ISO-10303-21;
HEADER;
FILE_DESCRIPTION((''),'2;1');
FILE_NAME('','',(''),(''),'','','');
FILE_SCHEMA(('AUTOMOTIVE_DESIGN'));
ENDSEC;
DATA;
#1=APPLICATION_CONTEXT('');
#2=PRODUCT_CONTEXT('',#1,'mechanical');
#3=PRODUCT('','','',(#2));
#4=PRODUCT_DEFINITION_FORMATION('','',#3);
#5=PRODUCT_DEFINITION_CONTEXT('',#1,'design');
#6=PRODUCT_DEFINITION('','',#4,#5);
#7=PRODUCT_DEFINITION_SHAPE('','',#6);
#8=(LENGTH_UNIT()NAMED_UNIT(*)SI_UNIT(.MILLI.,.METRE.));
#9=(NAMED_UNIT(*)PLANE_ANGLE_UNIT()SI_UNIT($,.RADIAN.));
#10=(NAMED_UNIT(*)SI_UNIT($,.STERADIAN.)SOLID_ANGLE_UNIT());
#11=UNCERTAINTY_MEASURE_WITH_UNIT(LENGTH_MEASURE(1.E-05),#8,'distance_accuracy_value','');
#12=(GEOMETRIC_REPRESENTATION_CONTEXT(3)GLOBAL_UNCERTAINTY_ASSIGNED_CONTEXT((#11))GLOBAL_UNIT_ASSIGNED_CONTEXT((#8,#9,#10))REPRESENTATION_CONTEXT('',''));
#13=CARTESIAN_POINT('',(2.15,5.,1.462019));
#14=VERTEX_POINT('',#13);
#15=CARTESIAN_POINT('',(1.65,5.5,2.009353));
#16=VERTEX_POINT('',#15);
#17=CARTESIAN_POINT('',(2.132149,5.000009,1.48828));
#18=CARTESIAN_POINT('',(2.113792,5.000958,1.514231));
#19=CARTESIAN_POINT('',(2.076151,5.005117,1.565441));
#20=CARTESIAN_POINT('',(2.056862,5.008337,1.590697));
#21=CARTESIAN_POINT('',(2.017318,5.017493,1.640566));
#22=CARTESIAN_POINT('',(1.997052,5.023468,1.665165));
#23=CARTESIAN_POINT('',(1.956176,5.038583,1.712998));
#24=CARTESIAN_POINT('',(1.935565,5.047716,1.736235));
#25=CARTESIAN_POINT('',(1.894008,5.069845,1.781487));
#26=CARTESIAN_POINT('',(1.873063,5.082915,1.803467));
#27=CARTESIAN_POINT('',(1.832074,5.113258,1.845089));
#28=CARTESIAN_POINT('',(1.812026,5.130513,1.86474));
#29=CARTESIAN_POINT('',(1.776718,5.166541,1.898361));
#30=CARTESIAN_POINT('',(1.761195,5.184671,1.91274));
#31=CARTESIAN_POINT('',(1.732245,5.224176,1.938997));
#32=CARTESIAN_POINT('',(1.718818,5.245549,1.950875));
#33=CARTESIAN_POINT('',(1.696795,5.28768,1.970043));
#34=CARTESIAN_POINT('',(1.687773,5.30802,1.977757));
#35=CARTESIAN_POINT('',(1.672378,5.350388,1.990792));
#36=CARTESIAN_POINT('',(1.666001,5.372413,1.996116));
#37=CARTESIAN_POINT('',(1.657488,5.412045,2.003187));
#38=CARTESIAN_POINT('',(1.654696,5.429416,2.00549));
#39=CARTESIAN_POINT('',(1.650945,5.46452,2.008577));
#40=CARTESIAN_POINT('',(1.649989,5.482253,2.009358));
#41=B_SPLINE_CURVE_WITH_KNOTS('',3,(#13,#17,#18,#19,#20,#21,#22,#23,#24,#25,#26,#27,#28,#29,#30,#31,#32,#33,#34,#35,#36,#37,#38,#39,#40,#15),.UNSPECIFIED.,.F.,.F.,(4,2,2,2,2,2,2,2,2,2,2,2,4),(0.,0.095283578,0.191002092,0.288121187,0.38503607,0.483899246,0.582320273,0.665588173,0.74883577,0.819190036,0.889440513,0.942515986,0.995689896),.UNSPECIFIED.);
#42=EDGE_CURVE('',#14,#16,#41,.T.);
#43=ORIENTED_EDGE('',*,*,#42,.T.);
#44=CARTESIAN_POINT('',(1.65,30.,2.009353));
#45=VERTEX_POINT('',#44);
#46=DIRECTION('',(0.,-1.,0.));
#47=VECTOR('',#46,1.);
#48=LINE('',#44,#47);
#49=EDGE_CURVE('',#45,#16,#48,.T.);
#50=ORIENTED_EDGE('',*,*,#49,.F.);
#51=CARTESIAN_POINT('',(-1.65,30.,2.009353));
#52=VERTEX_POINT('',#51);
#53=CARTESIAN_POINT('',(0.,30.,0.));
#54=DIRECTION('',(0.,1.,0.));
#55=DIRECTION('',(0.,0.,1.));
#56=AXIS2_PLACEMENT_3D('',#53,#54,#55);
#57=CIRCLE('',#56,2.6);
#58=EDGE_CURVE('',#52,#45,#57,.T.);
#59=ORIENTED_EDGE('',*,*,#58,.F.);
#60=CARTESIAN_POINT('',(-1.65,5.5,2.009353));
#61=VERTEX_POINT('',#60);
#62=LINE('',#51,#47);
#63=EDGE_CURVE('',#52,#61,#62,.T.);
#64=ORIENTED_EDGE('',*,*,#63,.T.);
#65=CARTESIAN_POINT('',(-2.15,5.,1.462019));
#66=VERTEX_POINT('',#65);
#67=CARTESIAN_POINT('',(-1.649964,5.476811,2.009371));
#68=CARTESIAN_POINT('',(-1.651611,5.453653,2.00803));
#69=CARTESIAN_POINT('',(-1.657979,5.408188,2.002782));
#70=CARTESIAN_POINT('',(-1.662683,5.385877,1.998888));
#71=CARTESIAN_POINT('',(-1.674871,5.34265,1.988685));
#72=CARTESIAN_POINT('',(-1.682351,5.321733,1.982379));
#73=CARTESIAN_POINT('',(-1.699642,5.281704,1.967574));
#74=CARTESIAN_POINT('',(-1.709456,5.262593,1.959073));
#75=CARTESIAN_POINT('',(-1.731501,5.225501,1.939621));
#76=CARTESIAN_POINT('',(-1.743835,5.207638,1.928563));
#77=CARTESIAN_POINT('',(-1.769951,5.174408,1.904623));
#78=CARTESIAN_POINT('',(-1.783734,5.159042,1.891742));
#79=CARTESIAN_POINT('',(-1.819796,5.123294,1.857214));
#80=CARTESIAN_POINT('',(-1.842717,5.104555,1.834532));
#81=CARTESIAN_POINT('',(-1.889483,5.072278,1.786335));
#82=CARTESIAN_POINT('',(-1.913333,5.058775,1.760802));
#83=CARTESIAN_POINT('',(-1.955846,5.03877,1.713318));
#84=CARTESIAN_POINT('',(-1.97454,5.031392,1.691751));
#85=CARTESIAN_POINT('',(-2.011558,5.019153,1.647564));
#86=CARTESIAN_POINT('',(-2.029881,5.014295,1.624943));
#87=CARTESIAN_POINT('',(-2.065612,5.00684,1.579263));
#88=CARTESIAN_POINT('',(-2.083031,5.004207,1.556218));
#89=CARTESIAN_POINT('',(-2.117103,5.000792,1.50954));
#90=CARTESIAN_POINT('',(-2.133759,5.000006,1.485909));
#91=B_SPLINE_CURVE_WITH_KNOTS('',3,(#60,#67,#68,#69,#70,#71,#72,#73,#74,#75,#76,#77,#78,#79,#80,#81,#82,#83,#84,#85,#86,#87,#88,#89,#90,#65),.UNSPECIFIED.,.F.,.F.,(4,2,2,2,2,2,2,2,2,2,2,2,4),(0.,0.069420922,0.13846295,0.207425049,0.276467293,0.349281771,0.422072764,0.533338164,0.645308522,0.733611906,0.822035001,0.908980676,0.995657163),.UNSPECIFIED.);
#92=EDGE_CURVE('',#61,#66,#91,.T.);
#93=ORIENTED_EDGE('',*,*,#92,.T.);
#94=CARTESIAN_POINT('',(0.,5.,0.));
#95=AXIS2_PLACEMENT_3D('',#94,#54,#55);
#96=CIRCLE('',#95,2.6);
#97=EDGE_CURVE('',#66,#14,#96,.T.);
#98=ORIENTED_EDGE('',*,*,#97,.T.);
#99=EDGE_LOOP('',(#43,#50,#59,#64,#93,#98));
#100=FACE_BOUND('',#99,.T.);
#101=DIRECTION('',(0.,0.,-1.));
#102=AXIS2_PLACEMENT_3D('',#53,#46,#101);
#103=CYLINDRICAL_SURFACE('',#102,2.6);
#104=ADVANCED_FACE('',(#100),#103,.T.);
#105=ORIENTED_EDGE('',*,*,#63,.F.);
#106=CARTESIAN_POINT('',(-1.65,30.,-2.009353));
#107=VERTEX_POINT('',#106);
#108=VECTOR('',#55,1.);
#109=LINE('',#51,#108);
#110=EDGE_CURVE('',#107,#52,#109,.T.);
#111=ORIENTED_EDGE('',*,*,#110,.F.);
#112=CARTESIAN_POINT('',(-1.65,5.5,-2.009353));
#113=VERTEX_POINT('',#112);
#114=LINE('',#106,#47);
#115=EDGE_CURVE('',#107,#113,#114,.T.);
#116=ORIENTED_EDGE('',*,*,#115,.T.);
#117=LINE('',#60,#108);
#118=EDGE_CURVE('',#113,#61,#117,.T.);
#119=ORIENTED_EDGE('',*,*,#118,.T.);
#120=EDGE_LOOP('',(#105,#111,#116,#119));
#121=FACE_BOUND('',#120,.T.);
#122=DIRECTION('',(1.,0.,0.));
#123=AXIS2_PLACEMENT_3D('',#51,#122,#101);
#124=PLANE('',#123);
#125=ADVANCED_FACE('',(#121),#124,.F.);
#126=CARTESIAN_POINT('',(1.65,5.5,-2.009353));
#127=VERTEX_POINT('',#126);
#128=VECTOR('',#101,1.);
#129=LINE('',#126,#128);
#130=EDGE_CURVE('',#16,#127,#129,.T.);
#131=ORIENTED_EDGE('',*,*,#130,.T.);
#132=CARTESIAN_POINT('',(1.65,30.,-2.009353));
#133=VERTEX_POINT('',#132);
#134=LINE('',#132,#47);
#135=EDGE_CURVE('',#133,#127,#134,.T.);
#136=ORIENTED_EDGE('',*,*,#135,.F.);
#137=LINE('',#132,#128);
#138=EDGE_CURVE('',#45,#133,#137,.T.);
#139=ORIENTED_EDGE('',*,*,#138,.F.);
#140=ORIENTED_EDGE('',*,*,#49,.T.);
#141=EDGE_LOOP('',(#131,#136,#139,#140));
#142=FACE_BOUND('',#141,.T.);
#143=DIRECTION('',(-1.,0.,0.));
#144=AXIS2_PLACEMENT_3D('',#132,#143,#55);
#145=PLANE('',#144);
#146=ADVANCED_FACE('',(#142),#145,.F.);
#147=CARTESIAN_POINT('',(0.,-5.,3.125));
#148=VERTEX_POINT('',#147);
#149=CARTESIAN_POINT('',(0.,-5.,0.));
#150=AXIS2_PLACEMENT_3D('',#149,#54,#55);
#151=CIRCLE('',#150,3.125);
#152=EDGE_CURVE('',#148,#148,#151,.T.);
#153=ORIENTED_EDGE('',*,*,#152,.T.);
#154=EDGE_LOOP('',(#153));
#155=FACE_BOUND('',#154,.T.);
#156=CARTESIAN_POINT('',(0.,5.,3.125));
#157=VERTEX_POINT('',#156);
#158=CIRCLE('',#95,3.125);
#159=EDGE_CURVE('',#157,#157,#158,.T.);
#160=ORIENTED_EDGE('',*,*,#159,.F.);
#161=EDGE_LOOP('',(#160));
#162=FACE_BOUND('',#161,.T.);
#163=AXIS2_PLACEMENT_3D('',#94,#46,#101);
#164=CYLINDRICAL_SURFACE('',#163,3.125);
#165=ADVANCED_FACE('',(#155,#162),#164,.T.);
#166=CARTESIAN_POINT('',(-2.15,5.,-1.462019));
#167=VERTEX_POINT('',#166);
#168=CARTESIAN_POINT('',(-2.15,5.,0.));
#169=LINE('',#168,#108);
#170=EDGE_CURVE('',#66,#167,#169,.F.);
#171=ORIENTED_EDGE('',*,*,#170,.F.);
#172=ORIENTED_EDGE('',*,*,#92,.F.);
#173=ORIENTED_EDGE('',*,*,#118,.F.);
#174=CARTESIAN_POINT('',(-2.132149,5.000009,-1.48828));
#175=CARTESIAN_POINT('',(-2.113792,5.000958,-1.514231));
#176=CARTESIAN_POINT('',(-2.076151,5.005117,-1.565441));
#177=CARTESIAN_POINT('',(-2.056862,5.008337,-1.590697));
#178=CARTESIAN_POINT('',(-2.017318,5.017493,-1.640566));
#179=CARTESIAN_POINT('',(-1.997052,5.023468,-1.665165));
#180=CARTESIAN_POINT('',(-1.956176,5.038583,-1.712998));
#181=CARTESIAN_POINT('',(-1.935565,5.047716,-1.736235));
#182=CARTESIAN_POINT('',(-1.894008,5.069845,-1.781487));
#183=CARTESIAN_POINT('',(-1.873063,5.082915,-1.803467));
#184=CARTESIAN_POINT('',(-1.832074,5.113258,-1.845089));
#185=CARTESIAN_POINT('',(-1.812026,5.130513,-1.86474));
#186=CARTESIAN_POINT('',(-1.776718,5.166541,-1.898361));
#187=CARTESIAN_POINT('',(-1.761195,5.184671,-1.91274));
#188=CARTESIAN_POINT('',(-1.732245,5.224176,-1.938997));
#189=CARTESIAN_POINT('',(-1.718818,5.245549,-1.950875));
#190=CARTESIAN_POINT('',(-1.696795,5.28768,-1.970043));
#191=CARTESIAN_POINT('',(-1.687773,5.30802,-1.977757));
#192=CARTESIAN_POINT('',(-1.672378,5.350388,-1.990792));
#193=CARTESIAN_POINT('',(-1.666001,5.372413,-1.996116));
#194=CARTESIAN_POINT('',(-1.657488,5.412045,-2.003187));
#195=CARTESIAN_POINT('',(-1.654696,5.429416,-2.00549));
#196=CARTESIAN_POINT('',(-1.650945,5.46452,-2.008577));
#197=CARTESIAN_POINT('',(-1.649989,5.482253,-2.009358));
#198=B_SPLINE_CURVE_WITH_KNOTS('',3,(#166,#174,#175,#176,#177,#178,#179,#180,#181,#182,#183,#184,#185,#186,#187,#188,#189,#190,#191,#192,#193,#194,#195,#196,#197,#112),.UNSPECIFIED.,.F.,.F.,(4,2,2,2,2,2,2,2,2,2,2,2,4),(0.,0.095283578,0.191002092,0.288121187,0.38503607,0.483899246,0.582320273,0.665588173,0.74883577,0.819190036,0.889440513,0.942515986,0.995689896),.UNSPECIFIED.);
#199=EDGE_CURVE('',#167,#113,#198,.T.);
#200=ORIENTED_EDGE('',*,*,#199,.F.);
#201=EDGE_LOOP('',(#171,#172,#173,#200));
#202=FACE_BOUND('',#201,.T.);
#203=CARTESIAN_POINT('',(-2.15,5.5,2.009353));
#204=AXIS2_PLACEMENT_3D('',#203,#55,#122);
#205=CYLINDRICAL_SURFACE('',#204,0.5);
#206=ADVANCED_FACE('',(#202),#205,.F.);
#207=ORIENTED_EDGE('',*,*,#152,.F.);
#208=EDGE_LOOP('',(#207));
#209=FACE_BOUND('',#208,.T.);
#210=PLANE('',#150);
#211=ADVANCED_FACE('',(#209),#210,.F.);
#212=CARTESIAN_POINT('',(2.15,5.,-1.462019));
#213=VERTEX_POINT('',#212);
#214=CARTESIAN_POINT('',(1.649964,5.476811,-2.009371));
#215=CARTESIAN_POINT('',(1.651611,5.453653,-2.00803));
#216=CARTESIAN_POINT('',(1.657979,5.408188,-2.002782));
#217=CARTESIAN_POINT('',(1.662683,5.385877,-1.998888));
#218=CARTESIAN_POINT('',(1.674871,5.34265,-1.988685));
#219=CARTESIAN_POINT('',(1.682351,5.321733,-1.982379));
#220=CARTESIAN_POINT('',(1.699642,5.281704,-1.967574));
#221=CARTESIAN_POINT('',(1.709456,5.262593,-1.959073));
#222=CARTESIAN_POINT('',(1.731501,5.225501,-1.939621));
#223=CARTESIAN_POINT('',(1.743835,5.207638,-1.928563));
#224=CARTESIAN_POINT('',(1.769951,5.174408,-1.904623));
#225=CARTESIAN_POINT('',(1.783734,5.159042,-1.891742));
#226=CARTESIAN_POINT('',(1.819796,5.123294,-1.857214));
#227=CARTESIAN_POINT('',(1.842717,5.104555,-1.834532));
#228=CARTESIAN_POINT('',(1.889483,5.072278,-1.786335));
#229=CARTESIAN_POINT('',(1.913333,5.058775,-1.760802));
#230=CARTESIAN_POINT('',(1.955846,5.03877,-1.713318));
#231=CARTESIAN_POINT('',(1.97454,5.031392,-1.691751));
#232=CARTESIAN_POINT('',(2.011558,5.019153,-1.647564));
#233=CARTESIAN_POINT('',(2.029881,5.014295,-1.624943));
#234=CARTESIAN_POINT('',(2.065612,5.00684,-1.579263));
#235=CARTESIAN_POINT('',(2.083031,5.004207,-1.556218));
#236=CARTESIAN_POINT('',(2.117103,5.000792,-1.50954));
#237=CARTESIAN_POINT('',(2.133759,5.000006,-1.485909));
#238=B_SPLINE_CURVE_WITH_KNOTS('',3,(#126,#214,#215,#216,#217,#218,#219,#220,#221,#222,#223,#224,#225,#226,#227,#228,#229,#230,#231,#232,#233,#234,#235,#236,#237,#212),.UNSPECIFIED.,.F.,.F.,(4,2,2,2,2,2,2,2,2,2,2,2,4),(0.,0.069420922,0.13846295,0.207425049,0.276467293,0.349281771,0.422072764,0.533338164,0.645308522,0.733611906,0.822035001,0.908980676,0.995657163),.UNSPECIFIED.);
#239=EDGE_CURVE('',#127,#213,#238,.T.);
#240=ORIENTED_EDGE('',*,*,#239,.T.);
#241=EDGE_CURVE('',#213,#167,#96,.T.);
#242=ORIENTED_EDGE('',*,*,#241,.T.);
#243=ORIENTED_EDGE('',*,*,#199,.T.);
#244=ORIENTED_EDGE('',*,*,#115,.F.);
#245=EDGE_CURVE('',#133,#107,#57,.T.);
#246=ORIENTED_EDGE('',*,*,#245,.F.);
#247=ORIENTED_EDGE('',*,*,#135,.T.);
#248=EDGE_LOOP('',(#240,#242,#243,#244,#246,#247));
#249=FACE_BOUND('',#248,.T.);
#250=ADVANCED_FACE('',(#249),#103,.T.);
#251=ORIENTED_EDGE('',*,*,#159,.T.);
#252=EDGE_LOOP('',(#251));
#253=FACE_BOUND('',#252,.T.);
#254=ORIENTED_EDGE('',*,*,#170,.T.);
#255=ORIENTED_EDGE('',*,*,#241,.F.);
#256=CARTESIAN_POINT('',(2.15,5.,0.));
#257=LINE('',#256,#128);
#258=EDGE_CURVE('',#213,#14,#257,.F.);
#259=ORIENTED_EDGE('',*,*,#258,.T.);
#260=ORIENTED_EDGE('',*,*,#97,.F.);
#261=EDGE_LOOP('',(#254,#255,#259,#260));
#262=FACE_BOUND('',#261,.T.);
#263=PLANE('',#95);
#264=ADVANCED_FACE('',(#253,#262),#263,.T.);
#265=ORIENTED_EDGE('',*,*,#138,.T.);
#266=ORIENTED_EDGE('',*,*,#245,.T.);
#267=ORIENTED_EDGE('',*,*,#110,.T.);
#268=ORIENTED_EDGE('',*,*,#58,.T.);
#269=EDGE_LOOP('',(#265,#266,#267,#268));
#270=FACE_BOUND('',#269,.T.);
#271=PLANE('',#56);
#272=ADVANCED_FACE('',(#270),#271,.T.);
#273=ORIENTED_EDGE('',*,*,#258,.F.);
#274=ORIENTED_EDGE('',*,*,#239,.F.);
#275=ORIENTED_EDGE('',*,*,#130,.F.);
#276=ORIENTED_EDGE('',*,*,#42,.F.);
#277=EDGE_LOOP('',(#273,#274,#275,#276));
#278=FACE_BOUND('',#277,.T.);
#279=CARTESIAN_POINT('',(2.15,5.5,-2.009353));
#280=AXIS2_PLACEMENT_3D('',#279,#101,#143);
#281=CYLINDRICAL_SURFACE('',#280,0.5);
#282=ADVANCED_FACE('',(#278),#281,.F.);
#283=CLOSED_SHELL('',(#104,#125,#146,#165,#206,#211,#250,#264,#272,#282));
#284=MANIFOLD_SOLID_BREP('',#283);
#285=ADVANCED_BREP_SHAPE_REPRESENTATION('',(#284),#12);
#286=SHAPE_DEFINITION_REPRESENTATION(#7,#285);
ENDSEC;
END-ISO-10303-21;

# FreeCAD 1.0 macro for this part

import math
import FreeCAD as App
import Part
import Sketcher
from FreeCAD import Vector


def edges_at(feature, points):
    """Names of the edges that pass closest to the given points."""
    edges = feature.Shape.Edges
    near = lambda p: min(range(len(edges)), key=lambda i: edges[i].distToShape(Part.Vertex(*p))[0])
    return sorted({f"Edge{near(p) + 1}" for p in points})

doc = App.newDocument("Part")
body = doc.addObject("PartDesign::Body", "Body")

sketch1 = body.newObject("Sketcher::SketchObject", "Sketch")
sketch1.AttachmentSupport = (doc.getObject("XZ_Plane"), [""])
sketch1.MapMode = "FlatFace"
sketch1.addGeometry(Part.Circle(Vector(0, 0, 0), Vector(0, 0, 1), 3.1), False)
sketch1.addConstraint([
    Sketcher.Constraint("Coincident", 0, 3, -1, 1),
    Sketcher.Constraint("Diameter", 0, 6.25),
])
pad1 = body.newObject("PartDesign::Pad", "Pad")
pad1.Profile = sketch1
pad1.Length = 10
pad1.Midplane = True

sketch2 = body.newObject("Sketcher::SketchObject", "Sketch001")
sketch2.AttachmentSupport = (doc.getObject("XZ_Plane"), [""])
sketch2.MapMode = "FlatFace"
sketch2.AttachmentOffset = App.Placement(Vector(0, 0, -5), App.Rotation())
sketch2.addGeometry([
    Part.LineSegment(Vector(-1.6, -2, 0), Vector(-1.6, 2, 0)),
    Part.ArcOfCircle(Part.Circle(Vector(0, 0, 0), Vector(0, 0, 1), 2.6), math.radians(51), math.radians(129)),
    Part.LineSegment(Vector(1.6, 2, 0), Vector(1.6, -2, 0)),
    Part.ArcOfCircle(Part.Circle(Vector(0, 0, 0), Vector(0, 0, 1), 2.6), math.radians(-129), math.radians(-51)),
], False)
sketch2.addConstraint([
    Sketcher.Constraint("Coincident", 0, 2, 1, 2),
    Sketcher.Constraint("Coincident", 1, 1, 2, 1),
    Sketcher.Constraint("Coincident", 2, 2, 3, 2),
    Sketcher.Constraint("Coincident", 3, 1, 0, 1),
    Sketcher.Constraint("Vertical", 0),
    Sketcher.Constraint("Vertical", 2),
    Sketcher.Constraint("Coincident", 1, 3, -1, 1),
    Sketcher.Constraint("Coincident", 3, 3, -1, 1),
    Sketcher.Constraint("Equal", 1, 3),
    Sketcher.Constraint("Horizontal", 0, 2, 1, 1),
    Sketcher.Constraint("Radius", 1, 2.6),
    Sketcher.Constraint("DistanceX", 0, 2, 1, 1, 3.3),
])
pad2 = body.newObject("PartDesign::Pad", "Pad001")
pad2.Profile = sketch2
pad2.Length = 25
pad2.Reversed = True
doc.recompute()

fillet = body.newObject("PartDesign::Fillet", "Fillet")
fillet.Base = (pad2, edges_at(pad2, [(1.65, 5, 0), (-1.65, 5, 0)]))
fillet.Radius = 0.5

doc.recompute()
